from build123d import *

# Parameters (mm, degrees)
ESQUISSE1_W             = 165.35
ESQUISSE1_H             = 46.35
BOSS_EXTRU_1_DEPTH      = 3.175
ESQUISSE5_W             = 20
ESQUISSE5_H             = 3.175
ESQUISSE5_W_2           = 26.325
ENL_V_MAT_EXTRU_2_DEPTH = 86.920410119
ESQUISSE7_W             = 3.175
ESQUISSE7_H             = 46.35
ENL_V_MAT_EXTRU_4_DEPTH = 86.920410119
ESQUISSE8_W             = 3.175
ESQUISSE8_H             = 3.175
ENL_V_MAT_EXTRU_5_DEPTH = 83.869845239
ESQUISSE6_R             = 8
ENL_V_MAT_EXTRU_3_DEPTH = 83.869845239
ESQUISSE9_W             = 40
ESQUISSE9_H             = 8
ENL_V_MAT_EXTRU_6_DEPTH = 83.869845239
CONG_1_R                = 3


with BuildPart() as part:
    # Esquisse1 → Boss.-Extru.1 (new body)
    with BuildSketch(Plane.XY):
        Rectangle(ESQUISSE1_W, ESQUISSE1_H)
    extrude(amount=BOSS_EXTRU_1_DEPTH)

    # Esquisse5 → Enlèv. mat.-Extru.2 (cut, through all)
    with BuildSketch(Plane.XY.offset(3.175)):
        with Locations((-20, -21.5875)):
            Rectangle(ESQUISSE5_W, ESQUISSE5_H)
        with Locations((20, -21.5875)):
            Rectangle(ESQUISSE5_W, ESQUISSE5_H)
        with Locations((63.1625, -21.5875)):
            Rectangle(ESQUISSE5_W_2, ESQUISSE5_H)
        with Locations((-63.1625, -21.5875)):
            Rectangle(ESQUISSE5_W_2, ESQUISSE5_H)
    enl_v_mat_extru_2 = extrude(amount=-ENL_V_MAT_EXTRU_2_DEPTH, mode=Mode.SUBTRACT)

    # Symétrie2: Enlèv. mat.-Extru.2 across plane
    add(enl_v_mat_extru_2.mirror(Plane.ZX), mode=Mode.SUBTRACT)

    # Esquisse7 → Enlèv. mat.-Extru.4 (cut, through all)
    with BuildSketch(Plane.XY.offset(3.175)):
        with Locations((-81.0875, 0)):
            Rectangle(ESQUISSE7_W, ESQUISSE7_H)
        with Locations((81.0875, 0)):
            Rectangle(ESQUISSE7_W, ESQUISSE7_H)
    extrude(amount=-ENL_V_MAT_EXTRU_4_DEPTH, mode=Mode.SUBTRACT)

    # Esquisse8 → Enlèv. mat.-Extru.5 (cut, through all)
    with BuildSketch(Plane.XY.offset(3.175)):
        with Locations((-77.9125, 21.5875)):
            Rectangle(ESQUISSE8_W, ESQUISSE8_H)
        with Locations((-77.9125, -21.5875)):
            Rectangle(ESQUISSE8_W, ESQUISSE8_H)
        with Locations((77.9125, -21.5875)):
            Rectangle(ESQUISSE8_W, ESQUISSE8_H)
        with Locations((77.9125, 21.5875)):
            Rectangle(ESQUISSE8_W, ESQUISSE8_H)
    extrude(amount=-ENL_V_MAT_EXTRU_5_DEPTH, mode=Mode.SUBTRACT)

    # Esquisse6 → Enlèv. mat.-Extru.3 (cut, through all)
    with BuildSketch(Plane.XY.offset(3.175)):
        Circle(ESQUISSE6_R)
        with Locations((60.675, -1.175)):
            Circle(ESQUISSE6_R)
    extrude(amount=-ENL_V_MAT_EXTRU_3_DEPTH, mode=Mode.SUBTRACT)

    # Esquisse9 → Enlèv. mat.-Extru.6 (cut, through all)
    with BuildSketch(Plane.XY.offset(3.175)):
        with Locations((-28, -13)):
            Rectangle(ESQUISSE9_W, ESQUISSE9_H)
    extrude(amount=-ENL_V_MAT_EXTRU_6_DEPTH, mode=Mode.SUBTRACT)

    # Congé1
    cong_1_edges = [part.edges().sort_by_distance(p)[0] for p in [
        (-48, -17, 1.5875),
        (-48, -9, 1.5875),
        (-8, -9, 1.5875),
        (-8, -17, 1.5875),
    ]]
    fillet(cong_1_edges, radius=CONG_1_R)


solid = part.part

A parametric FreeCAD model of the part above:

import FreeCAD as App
import Part
import Sketcher
Q = App.Units.Quantity


def edges_at(feature, points):
    """Names of the edges that pass closest to the given points."""
    edges = feature.Shape.Edges
    near = lambda p: min(range(len(edges)), key=lambda i: edges[i].distToShape(Part.Vertex(*p))[0])
    return sorted({f"Edge{near(p) + 1}" for p in points})

doc = App.newDocument("Part")
body = doc.addObject("PartDesign::Body", "Body")

# Sketch on XY plane
sketch1 = body.newObject("Sketcher::SketchObject", "Sketch")
sketch1.AttachmentSupport = (doc.getObject("XY_Plane"), [""])
sketch1.MapMode = "FlatFace"
sketch1.addGeometry([
    Part.LineSegment(App.Vector(-83, 23, 0), App.Vector(-83, -23, 0)),
    Part.LineSegment(App.Vector(-83, -23, 0), App.Vector(83, -23, 0)),
    Part.LineSegment(App.Vector(83, -23, 0), App.Vector(83, 23, 0)),
    Part.LineSegment(App.Vector(83, 23, 0), App.Vector(-83, 23, 0)),
], False)
sketch1.addConstraint([
    Sketcher.Constraint("Coincident", 0, 2, 1, 1),
    Sketcher.Constraint("Coincident", 1, 2, 2, 1),
    Sketcher.Constraint("Coincident", 2, 2, 3, 1),
    Sketcher.Constraint("Coincident", 3, 2, 0, 1),
    Sketcher.Constraint("Vertical", 0),
    Sketcher.Constraint("Horizontal", 1),
    Sketcher.Constraint("Vertical", 2),
    Sketcher.Constraint("Horizontal", 3),
    Sketcher.Constraint("Symmetric", 0, 2, 2, 2, -1, 1),
    Sketcher.Constraint("DistanceX", 1, 1, 1, 2, Q("165.35 mm")),
    Sketcher.Constraint("DistanceY", 0, 2, 0, 1, Q("46.35 mm")),
])
pad1 = body.newObject("PartDesign::Pad", "Pad")
pad1.Profile = sketch1
pad1.Length = 3.175

# Sketch on XY plane
sketch2 = body.newObject("Sketcher::SketchObject", "Sketch001")
sketch2.AttachmentSupport = (doc.getObject("XY_Plane"), [""])
sketch2.MapMode = "FlatFace"
sketch2.AttachmentOffset = App.Placement(App.Vector(0, 0, 3.175), App.Rotation())
sketch2.addGeometry([
    Part.LineSegment(App.Vector(-30, -20, 0), App.Vector(-30, -23.2, 0)),  # 0
    Part.LineSegment(App.Vector(-30, -23.2, 0), App.Vector(-10, -23.2, 0)),  # 1
    Part.LineSegment(App.Vector(-10, -23.2, 0), App.Vector(-10, -20, 0)),  # 2
    Part.LineSegment(App.Vector(-10, -20, 0), App.Vector(-30, -20, 0)),  # 3
    Part.LineSegment(App.Vector(10, -20, 0), App.Vector(10, -23.2, 0)),  # 4
    Part.LineSegment(App.Vector(10, -23.2, 0), App.Vector(30, -23.2, 0)),  # 5
    Part.LineSegment(App.Vector(30, -23.2, 0), App.Vector(30, -20, 0)),  # 6
    Part.LineSegment(App.Vector(30, -20, 0), App.Vector(10, -20, 0)),  # 7
    Part.LineSegment(App.Vector(50, -20, 0), App.Vector(50, -23.2, 0)),  # 8
    Part.LineSegment(App.Vector(50, -23.2, 0), App.Vector(76.3, -23.2, 0)),  # 9
    Part.LineSegment(App.Vector(76.3, -23.2, 0), App.Vector(76.3, -20, 0)),  # 10
    Part.LineSegment(App.Vector(76.3, -20, 0), App.Vector(50, -20, 0)),  # 11
    Part.LineSegment(App.Vector(-76.3, -20, 0), App.Vector(-76.3, -23.2, 0)),  # 12
    Part.LineSegment(App.Vector(-76.3, -23.2, 0), App.Vector(-50, -23.2, 0)),  # 13
    Part.LineSegment(App.Vector(-50, -23.2, 0), App.Vector(-50, -20, 0)),  # 14
    Part.LineSegment(App.Vector(-50, -20, 0), App.Vector(-76.3, -20, 0)),  # 15
], False)
sketch2.addConstraint([
    Sketcher.Constraint("Coincident", 0, 2, 1, 1),
    Sketcher.Constraint("Coincident", 1, 2, 2, 1),
    Sketcher.Constraint("Coincident", 2, 2, 3, 1),
    Sketcher.Constraint("Coincident", 3, 2, 0, 1),
    Sketcher.Constraint("Coincident", 4, 2, 5, 1),
    Sketcher.Constraint("Coincident", 5, 2, 6, 1),
    Sketcher.Constraint("Coincident", 6, 2, 7, 1),
    Sketcher.Constraint("Coincident", 7, 2, 4, 1),
    Sketcher.Constraint("Coincident", 8, 2, 9, 1),
    Sketcher.Constraint("Coincident", 9, 2, 10, 1),
    Sketcher.Constraint("Coincident", 10, 2, 11, 1),
    Sketcher.Constraint("Coincident", 11, 2, 8, 1),
    Sketcher.Constraint("Coincident", 12, 2, 13, 1),
    Sketcher.Constraint("Coincident", 13, 2, 14, 1),
    Sketcher.Constraint("Coincident", 14, 2, 15, 1),
    Sketcher.Constraint("Coincident", 15, 2, 12, 1),
    Sketcher.Constraint("Vertical", 0),
    Sketcher.Constraint("Horizontal", 1),
    Sketcher.Constraint("Vertical", 2),
    Sketcher.Constraint("Horizontal", 3),
    Sketcher.Constraint("Vertical", 4),
    Sketcher.Constraint("Horizontal", 5),
    Sketcher.Constraint("Vertical", 6),
    Sketcher.Constraint("Horizontal", 7),
    Sketcher.Constraint("Vertical", 8),
    Sketcher.Constraint("Horizontal", 9),
    Sketcher.Constraint("Vertical", 10),
    Sketcher.Constraint("Horizontal", 11),
    Sketcher.Constraint("Vertical", 12),
    Sketcher.Constraint("Horizontal", 13),
    Sketcher.Constraint("Vertical", 14),
    Sketcher.Constraint("Horizontal", 15),
    Sketcher.Constraint("Symmetric", 1, 2, 4, 2, -2),
    Sketcher.Constraint("Symmetric", 3, 2, 6, 2, -2),
    Sketcher.Constraint("Symmetric", 9, 2, 12, 2, -2),
    Sketcher.Constraint("Symmetric", 11, 2, 14, 2, -2),
    Sketcher.Constraint("Horizontal", 5, 2, 8, 2),
    Sketcher.Constraint("Horizontal", 7, 2, 10, 2),
    Sketcher.Constraint("DistanceX", 1, 1, 1, 2, Q("20 mm")),
    Sketcher.Constraint("DistanceX", 0, 2, -1, 1, Q("30 mm")),
    Sketcher.Constraint("DistanceY", 2, 2, -1, 1, Q("20 mm")),
    Sketcher.Constraint("DistanceX", -1, 1, 8, 2, Q("50 mm")),
    Sketcher.Constraint("DistanceX", 9, 1, 9, 2, Q("26.325 mm")),
    Sketcher.Constraint("DistanceY", 0, 2, 0, 1, Q("3.175 mm")),
])
pocket1 = body.newObject("PartDesign::Pocket", "Pocket")
pocket1.Profile = sketch2
pocket1.Type = "ThroughAll"
doc.recompute()

mirrored = body.newObject("PartDesign::Mirrored", "Mirrored")
mirrored.Originals = [pocket1]
mirrored.MirrorPlane = (doc.getObject("XZ_Plane"), [""])
body.Tip = mirrored

# Sketch on XY plane
sketch3 = body.newObject("Sketcher::SketchObject", "Sketch002")
sketch3.AttachmentSupport = (doc.getObject("XY_Plane"), [""])
sketch3.MapMode = "FlatFace"
sketch3.AttachmentOffset = App.Placement(App.Vector(0, 0, 3.175), App.Rotation())
sketch3.addGeometry([
    Part.LineSegment(App.Vector(-82.7, 23.2, 0), App.Vector(-82.7, -23.2, 0)),  # 0
    Part.LineSegment(App.Vector(-82.7, -23.2, 0), App.Vector(-79.5, -23.2, 0)),  # 1
    Part.LineSegment(App.Vector(-79.5, -23.2, 0), App.Vector(-79.5, 23.2, 0)),  # 2
    Part.LineSegment(App.Vector(-79.5, 23.2, 0), App.Vector(-82.7, 23.2, 0)),  # 3
    Part.LineSegment(App.Vector(79.5, 23.2, 0), App.Vector(79.5, -23.2, 0)),  # 4
    Part.LineSegment(App.Vector(79.5, -23.2, 0), App.Vector(82.7, -23.2, 0)),  # 5
    Part.LineSegment(App.Vector(82.7, -23.2, 0), App.Vector(82.7, 23.2, 0)),  # 6
    Part.LineSegment(App.Vector(82.7, 23.2, 0), App.Vector(79.5, 23.2, 0)),  # 7
], False)
sketch3.addConstraint([
    Sketcher.Constraint("Coincident", 0, 2, 1, 1),
    Sketcher.Constraint("Coincident", 1, 2, 2, 1),
    Sketcher.Constraint("Coincident", 2, 2, 3, 1),
    Sketcher.Constraint("Coincident", 3, 2, 0, 1),
    Sketcher.Constraint("Coincident", 4, 2, 5, 1),
    Sketcher.Constraint("Coincident", 5, 2, 6, 1),
    Sketcher.Constraint("Coincident", 6, 2, 7, 1),
    Sketcher.Constraint("Coincident", 7, 2, 4, 1),
    Sketcher.Constraint("Vertical", 0),
    Sketcher.Constraint("Horizontal", 1),
    Sketcher.Constraint("Vertical", 2),
    Sketcher.Constraint("Horizontal", 3),
    Sketcher.Constraint("Vertical", 4),
    Sketcher.Constraint("Horizontal", 5),
    Sketcher.Constraint("Vertical", 6),
    Sketcher.Constraint("Horizontal", 7),
    Sketcher.Constraint("Symmetric", 2, 2, 4, 2, -1, 1),
    Sketcher.Constraint("Symmetric", 0, 2, 6, 2, -1, 1),
    Sketcher.Constraint("Horizontal", 1, 2, 4, 2),
    Sketcher.Constraint("DistanceX", 1, 2, 4, 2, Q("159 mm")),
    Sketcher.Constraint("DistanceY", 0, 2, 0, 1, Q("46.35 mm")),
    Sketcher.Constraint("DistanceX", 1, 1, 1, 2, Q("3.175 mm")),
])
pocket2 = body.newObject("PartDesign::Pocket", "Pocket001")
pocket2.Profile = sketch3
pocket2.Type = "ThroughAll"

# Sketch on XY plane
sketch4 = body.newObject("Sketcher::SketchObject", "Sketch003")
sketch4.AttachmentSupport = (doc.getObject("XY_Plane"), [""])
sketch4.MapMode = "FlatFace"
sketch4.AttachmentOffset = App.Placement(App.Vector(0, 0, 3.175), App.Rotation())
sketch4.addGeometry([
    Part.LineSegment(App.Vector(-79.5, 23.2, 0), App.Vector(-79.5, 20, 0)),  # 0
    Part.LineSegment(App.Vector(-79.5, 20, 0), App.Vector(-76.3, 20, 0)),  # 1
    Part.LineSegment(App.Vector(-76.3, 20, 0), App.Vector(-76.3, 23.2, 0)),  # 2
    Part.LineSegment(App.Vector(-76.3, 23.2, 0), App.Vector(-79.5, 23.2, 0)),  # 3
    Part.LineSegment(App.Vector(-79.5, -20, 0), App.Vector(-79.5, -23.2, 0)),  # 4
    Part.LineSegment(App.Vector(-79.5, -23.2, 0), App.Vector(-76.3, -23.2, 0)),  # 5
    Part.LineSegment(App.Vector(-76.3, -23.2, 0), App.Vector(-76.3, -20, 0)),  # 6
    Part.LineSegment(App.Vector(-76.3, -20, 0), App.Vector(-79.5, -20, 0)),  # 7
    Part.LineSegment(App.Vector(76.3, -20, 0), App.Vector(76.3, -23.2, 0)),  # 8
    Part.LineSegment(App.Vector(76.3, -23.2, 0), App.Vector(79.5, -23.2, 0)),  # 9
    Part.LineSegment(App.Vector(79.5, -23.2, 0), App.Vector(79.5, -20, 0)),  # 10
    Part.LineSegment(App.Vector(79.5, -20, 0), App.Vector(76.3, -20, 0)),  # 11
    Part.LineSegment(App.Vector(76.3, 23.2, 0), App.Vector(76.3, 20, 0)),  # 12
    Part.LineSegment(App.Vector(76.3, 20, 0), App.Vector(79.5, 20, 0)),  # 13
    Part.LineSegment(App.Vector(79.5, 20, 0), App.Vector(79.5, 23.2, 0)),  # 14
    Part.LineSegment(App.Vector(79.5, 23.2, 0), App.Vector(76.3, 23.2, 0)),  # 15
], False)
sketch4.addConstraint([
    Sketcher.Constraint("Coincident", 0, 2, 1, 1),
    Sketcher.Constraint("Coincident", 1, 2, 2, 1),
    Sketcher.Constraint("Coincident", 2, 2, 3, 1),
    Sketcher.Constraint("Coincident", 3, 2, 0, 1),
    Sketcher.Constraint("Coincident", 4, 2, 5, 1),
    Sketcher.Constraint("Coincident", 5, 2, 6, 1),
    Sketcher.Constraint("Coincident", 6, 2, 7, 1),
    Sketcher.Constraint("Coincident", 7, 2, 4, 1),
    Sketcher.Constraint("Coincident", 8, 2, 9, 1),
    Sketcher.Constraint("Coincident", 9, 2, 10, 1),
    Sketcher.Constraint("Coincident", 10, 2, 11, 1),
    Sketcher.Constraint("Coincident", 11, 2, 8, 1),
    Sketcher.Constraint("Coincident", 12, 2, 13, 1),
    Sketcher.Constraint("Coincident", 13, 2, 14, 1),
    Sketcher.Constraint("Coincident", 14, 2, 15, 1),
    Sketcher.Constraint("Coincident", 15, 2, 12, 1),
    Sketcher.Constraint("Vertical", 0),
    Sketcher.Constraint("Horizontal", 1),
    Sketcher.Constraint("Vertical", 2),
    Sketcher.Constraint("Horizontal", 3),
    Sketcher.Constraint("Vertical", 4),
    Sketcher.Constraint("Horizontal", 5),
    Sketcher.Constraint("Vertical", 6),
    Sketcher.Constraint("Horizontal", 7),
    Sketcher.Constraint("Vertical", 8),
    Sketcher.Constraint("Horizontal", 9),
    Sketcher.Constraint("Vertical", 10),
    Sketcher.Constraint("Horizontal", 11),
    Sketcher.Constraint("Vertical", 12),
    Sketcher.Constraint("Horizontal", 13),
    Sketcher.Constraint("Vertical", 14),
    Sketcher.Constraint("Horizontal", 15),
    Sketcher.Constraint("Symmetric", 2, 2, 8, 2, -1, 1),
    Sketcher.Constraint("Symmetric", 0, 2, 10, 2, -1, 1),
    Sketcher.Constraint("Symmetric", 6, 2, 12, 2, -1, 1),
    Sketcher.Constraint("Symmetric", 4, 2, 14, 2, -1, 1),
    Sketcher.Constraint("Symmetric", 5, 2, 8, 2, -2),
    Sketcher.Constraint("Symmetric", 7, 2, 10, 2, -2),
    Sketcher.Constraint("Equal", 15, 0),
    Sketcher.Constraint("DistanceY", -1, 1, 0, 2, Q("20 mm")),
    Sketcher.Constraint("DistanceX", 4, 2, 9, 2, Q("159 mm")),
    Sketcher.Constraint("DistanceX", 1, 1, 1, 2, Q("3.175 mm")),
])
pocket3 = body.newObject("PartDesign::Pocket", "Pocket002")
pocket3.Profile = sketch4
pocket3.Type = "ThroughAll"

# Sketch on XY plane
sketch5 = body.newObject("Sketcher::SketchObject", "Sketch004")
sketch5.AttachmentSupport = (doc.getObject("XY_Plane"), [""])
sketch5.MapMode = "FlatFace"
sketch5.AttachmentOffset = App.Placement(App.Vector(0, 0, 3.175), App.Rotation())
sketch5.addGeometry([
    Part.Circle(App.Vector(0, 0, 0), App.Vector(0, 0, 1), 8),
    Part.Circle(App.Vector(61, -1, 0), App.Vector(0, 0, 1), 8),
], False)
sketch5.addConstraint([
    Sketcher.Constraint("Coincident", 0, 3, -1, 1),
    Sketcher.Constraint("Equal", 0, 1),
    Sketcher.Constraint("Diameter", 0, Q("16 mm")),
    Sketcher.Constraint("DistanceX", -1, 1, 1, 3, Q("60.675 mm")),
    Sketcher.Constraint("DistanceY", 1, 3, -1, 1, Q("1.175 mm")),
])
pocket4 = body.newObject("PartDesign::Pocket", "Pocket003")
pocket4.Profile = sketch5
pocket4.Type = "ThroughAll"

# Sketch on XY plane
sketch6 = body.newObject("Sketcher::SketchObject", "Sketch005")
sketch6.AttachmentSupport = (doc.getObject("XY_Plane"), [""])
sketch6.MapMode = "FlatFace"
sketch6.AttachmentOffset = App.Placement(App.Vector(0, 0, 3.175), App.Rotation())
sketch6.addGeometry([
    Part.LineSegment(App.Vector(-48, -9, 0), App.Vector(-48, -17, 0)),
    Part.LineSegment(App.Vector(-48, -17, 0), App.Vector(-8, -17, 0)),
    Part.LineSegment(App.Vector(-8, -17, 0), App.Vector(-8, -9, 0)),
    Part.LineSegment(App.Vector(-8, -9, 0), App.Vector(-48, -9, 0)),
], False)
sketch6.addConstraint([
    Sketcher.Constraint("Coincident", 0, 2, 1, 1),
    Sketcher.Constraint("Coincident", 1, 2, 2, 1),
    Sketcher.Constraint("Coincident", 2, 2, 3, 1),
    Sketcher.Constraint("Coincident", 3, 2, 0, 1),
    Sketcher.Constraint("Vertical", 0),
    Sketcher.Constraint("Horizontal", 1),
    Sketcher.Constraint("Vertical", 2),
    Sketcher.Constraint("Horizontal", 3),
    Sketcher.Constraint("DistanceX", 1, 1, 1, 2, Q("40 mm")),
    Sketcher.Constraint("DistanceY", 0, 2, 0, 1, Q("8 mm")),
    Sketcher.Constraint("DistanceX", 0, 2, -1, 1, Q("48 mm")),
    Sketcher.Constraint("DistanceY", 0, 2, -1, 1, Q("17 mm")),
])
pocket5 = body.newObject("PartDesign::Pocket", "Pocket004")
pocket5.Profile = sketch6
pocket5.Type = "ThroughAll"
doc.recompute()

fillet = body.newObject("PartDesign::Fillet", "Fillet")
fillet.Base = (pocket5, edges_at(pocket5, [
    (-48, -17, 1.587),
    (-48, -9, 1.587),
    (-8, -9, 1.587),
    (-8, -17, 1.587),
]))
fillet.Radius = 3

doc.recompute()
